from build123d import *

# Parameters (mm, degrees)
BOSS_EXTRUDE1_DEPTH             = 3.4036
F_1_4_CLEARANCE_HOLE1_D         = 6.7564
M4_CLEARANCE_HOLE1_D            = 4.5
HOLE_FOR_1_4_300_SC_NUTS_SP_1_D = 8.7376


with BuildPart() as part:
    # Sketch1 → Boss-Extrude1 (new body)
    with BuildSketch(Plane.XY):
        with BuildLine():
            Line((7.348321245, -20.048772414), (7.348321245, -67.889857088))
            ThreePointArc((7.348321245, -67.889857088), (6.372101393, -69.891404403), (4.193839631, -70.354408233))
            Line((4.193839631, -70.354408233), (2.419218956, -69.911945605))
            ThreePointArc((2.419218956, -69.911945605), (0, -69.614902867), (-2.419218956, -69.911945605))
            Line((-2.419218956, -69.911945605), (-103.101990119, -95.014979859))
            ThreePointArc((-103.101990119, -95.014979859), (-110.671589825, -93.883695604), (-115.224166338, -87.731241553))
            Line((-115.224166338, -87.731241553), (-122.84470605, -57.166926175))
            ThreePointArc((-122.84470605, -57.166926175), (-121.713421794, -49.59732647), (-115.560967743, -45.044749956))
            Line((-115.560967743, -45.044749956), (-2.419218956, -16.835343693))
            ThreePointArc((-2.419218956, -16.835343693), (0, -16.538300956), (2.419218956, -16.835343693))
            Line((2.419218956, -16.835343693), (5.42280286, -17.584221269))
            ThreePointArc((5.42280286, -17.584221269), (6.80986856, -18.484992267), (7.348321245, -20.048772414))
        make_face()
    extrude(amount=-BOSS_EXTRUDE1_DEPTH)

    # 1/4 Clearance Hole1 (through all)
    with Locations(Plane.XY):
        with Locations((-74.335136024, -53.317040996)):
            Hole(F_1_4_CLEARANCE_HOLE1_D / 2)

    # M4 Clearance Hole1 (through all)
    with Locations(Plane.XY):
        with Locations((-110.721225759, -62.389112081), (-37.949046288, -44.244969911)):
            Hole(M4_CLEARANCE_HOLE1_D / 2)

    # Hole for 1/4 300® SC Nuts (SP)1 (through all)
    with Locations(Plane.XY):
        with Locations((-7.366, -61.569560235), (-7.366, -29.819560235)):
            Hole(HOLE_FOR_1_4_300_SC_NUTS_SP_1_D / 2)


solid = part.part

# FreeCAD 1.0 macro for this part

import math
import FreeCAD as App
import Part
import Sketcher

V = App.Vector
Q = App.Units.Quantity

doc = App.newDocument("Part")
body = doc.addObject("PartDesign::Body", "Body")

# Sketch on XY plane
sketch1 = doc.addObject("Sketcher::SketchObject", "Sketch")
body.addObject(sketch1)
sketch1.AttachmentSupport = (doc.XY_Plane, [""])
sketch1.MapMode = "FlatFace"
sketch1.addGeometry([
    Part.LineSegment(V(7.348321, -67.889857, 0), V(7.348321, -20.048772, 0)),  # 0
    Part.ArcOfCircle(Part.Circle(V(4.808321, -20.048772, 0), V(0, 0, 1), 2.54), math.radians(0), math.radians(76)),  # 1
    Part.LineSegment(V(5.422803, -17.584221, 0), V(2.419219, -16.835344, 0)),  # 2
    Part.ArcOfCircle(Part.Circle(V(0, -26.538301, 0), V(0, 0, 1), 10), math.radians(76), math.radians(104)),  # 3
    Part.LineSegment(V(-2.419219, -16.835344, 0), V(-115.560968, -45.04475, 0)),  # 4
    Part.ArcOfCircle(Part.Circle(V(-113.141749, -54.747707, 0), V(0, 0, 1), 10), math.radians(104), math.radians(194)),  # 5
    Part.LineSegment(V(-122.844706, -57.166926, 0), V(-115.224166, -87.731242, 0)),  # 6
    Part.ArcOfCircle(Part.Circle(V(-105.521209, -85.312023, 0), V(0, 0, 1), 10), math.radians(-166), math.radians(-76)),  # 7
    Part.LineSegment(V(-103.10199, -95.01498, 0), V(-2.419219, -69.911946, 0)),  # 8
    Part.ArcOfCircle(Part.Circle(V(0, -79.614903, 0), V(0, 0, 1), 10), math.radians(76), math.radians(104)),  # 9
    Part.LineSegment(V(2.419219, -69.911946, 0), V(4.19384, -70.354408, 0)),  # 10
    Part.ArcOfCircle(Part.Circle(V(4.808321, -67.889857, 0), V(0, 0, 1), 2.54), math.radians(-104), math.radians(0)),  # 11
], False)
sketch1.addConstraint([
    Sketcher.Constraint("Tangent", 0, 2, 1, 1),
    Sketcher.Constraint("Tangent", 1, 2, 2, 1),
    Sketcher.Constraint("Tangent", 2, 2, 3, 1),
    Sketcher.Constraint("Tangent", 3, 2, 4, 1),
    Sketcher.Constraint("Tangent", 4, 2, 5, 1),
    Sketcher.Constraint("Tangent", 5, 2, 6, 1),
    Sketcher.Constraint("Tangent", 6, 2, 7, 1),
    Sketcher.Constraint("Tangent", 7, 2, 8, 1),
    Sketcher.Constraint("Tangent", 8, 2, 9, 2),
    Sketcher.Constraint("Tangent", 9, 1, 10, 1),
    Sketcher.Constraint("Tangent", 10, 2, 11, 1),
    Sketcher.Constraint("Tangent", 11, 2, 0, 1),
    Sketcher.Constraint("Vertical", 0),
    Sketcher.Constraint("Equal", 3, 5),
    Sketcher.Constraint("Equal", 5, 7),
    Sketcher.Constraint("Equal", 7, 9),
    Sketcher.Constraint("Equal", 1, 11),
    Sketcher.Constraint("Symmetric", 2, 2, 3, 2, -2),
    Sketcher.Constraint("Symmetric", 8, 2, 9, 1, -2),
    Sketcher.Constraint("Perpendicular", 4, 6),
    Sketcher.Constraint("Perpendicular", 6, 8),
    Sketcher.Constraint("Radius", 1, Q("0.1 in")),
    Sketcher.Constraint("Angle", 2, Q("166 deg")),
    Sketcher.Constraint("Radius", 3, Q("10 mm")),
    Sketcher.Constraint("Distance", 6, Q("31.5 mm")),
    Sketcher.Constraint("DistanceY", 3, 3, -1, 1, Q("26.538301 mm")),
    Sketcher.Constraint("Distance", 4, Q("116.605428 mm")),
    Sketcher.Constraint("Distance", 10, Q("1.828948 mm")),
])
pad1 = doc.addObject("PartDesign::Pad", "Pad")
body.addObject(pad1)
pad1.Profile = sketch1
pad1.Length = Q("0.134 in")
pad1.Reversed = True

# Sketch on XY plane
sketch2 = doc.addObject("Sketcher::SketchObject", "Sketch001")
body.addObject(sketch2)
sketch2.AttachmentSupport = (doc.XY_Plane, [""])
sketch2.MapMode = "FlatFace"
sketch2.addGeometry(Part.Circle(V(-74.335136, -53.317041, 0), V(0, 0, 1), 3.3782), False)
sketch2.addConstraint([
    Sketcher.Constraint("Diameter", 0, Q("0.266 in")),
    Sketcher.Constraint("DistanceY", 0, 3, -1, 1, Q("53.317041 mm")),
    Sketcher.Constraint("DistanceX", 0, 3, -1, 1, Q("74.335136 mm")),
])
doc.recompute()
hole = doc.addObject("PartDesign::Hole", "Hole")
body.addObject(hole)
hole.Profile = sketch2
hole.ThreadType = "None"
hole.Diameter = Q("0.266 in")
hole.DepthType = "ThroughAll"

# Sketch on XY plane
sketch3 = doc.addObject("Sketcher::SketchObject", "Sketch002")
body.addObject(sketch3)
sketch3.AttachmentSupport = (doc.XY_Plane, [""])
sketch3.MapMode = "FlatFace"
sketch3.addGeometry([
    Part.Circle(V(-110.721226, -62.389112, 0), V(0, 0, 1), 2.25),
    Part.Circle(V(-37.949046, -44.24497, 0), V(0, 0, 1), 2.25),
], False)
sketch3.addConstraint([
    Sketcher.Constraint("Equal", 0, 1),
    Sketcher.Constraint("Diameter", 0, Q("4.5 mm")),
    Sketcher.Constraint("DistanceY", 1, 3, -1, 1, Q("44.24497 mm")),
    Sketcher.Constraint("DistanceX", 0, 3, 1, 3, Q("72.772179 mm")),
    Sketcher.Constraint("DistanceX", 0, 3, -1, 1, Q("110.721226 mm")),
    Sketcher.Constraint("DistanceY", 0, 3, -1, 1, Q("62.389112 mm")),
])
doc.recompute()
hole2 = doc.addObject("PartDesign::Hole", "Hole001")
body.addObject(hole2)
hole2.Profile = sketch3
hole2.ThreadType = "None"
hole2.Diameter = 4.5
hole2.DepthType = "ThroughAll"

# Sketch on XY plane
sketch4 = doc.addObject("Sketcher::SketchObject", "Sketch003")
body.addObject(sketch4)
sketch4.AttachmentSupport = (doc.XY_Plane, [""])
sketch4.MapMode = "FlatFace"
sketch4.addGeometry([
    Part.Circle(V(-7.366, -61.56956, 0), V(0, 0, 1), 4.3688),
    Part.Circle(V(-7.366, -29.81956, 0), V(0, 0, 1), 4.3688),
], False)
sketch4.addConstraint([
    Sketcher.Constraint("Equal", 0, 1),
    Sketcher.Constraint("Vertical", 0, 3, 1, 3),
    Sketcher.Constraint("Diameter", 0, Q("0.344 in")),
    Sketcher.Constraint("DistanceX", 0, 3, -1, 1, Q("0.29 in")),
    Sketcher.Constraint("DistanceY", 0, 3, 1, 3, Q("1.25 in")),
    Sketcher.Constraint("DistanceY", 0, 3, -1, 1, Q("61.56956 mm")),
])
doc.recompute()
hole3 = doc.addObject("PartDesign::Hole", "Hole002")
body.addObject(hole3)
hole3.Profile = sketch4
hole3.ThreadType = "None"
hole3.Diameter = Q("0.344 in")
hole3.DepthType = "ThroughAll"

doc.recompute()
